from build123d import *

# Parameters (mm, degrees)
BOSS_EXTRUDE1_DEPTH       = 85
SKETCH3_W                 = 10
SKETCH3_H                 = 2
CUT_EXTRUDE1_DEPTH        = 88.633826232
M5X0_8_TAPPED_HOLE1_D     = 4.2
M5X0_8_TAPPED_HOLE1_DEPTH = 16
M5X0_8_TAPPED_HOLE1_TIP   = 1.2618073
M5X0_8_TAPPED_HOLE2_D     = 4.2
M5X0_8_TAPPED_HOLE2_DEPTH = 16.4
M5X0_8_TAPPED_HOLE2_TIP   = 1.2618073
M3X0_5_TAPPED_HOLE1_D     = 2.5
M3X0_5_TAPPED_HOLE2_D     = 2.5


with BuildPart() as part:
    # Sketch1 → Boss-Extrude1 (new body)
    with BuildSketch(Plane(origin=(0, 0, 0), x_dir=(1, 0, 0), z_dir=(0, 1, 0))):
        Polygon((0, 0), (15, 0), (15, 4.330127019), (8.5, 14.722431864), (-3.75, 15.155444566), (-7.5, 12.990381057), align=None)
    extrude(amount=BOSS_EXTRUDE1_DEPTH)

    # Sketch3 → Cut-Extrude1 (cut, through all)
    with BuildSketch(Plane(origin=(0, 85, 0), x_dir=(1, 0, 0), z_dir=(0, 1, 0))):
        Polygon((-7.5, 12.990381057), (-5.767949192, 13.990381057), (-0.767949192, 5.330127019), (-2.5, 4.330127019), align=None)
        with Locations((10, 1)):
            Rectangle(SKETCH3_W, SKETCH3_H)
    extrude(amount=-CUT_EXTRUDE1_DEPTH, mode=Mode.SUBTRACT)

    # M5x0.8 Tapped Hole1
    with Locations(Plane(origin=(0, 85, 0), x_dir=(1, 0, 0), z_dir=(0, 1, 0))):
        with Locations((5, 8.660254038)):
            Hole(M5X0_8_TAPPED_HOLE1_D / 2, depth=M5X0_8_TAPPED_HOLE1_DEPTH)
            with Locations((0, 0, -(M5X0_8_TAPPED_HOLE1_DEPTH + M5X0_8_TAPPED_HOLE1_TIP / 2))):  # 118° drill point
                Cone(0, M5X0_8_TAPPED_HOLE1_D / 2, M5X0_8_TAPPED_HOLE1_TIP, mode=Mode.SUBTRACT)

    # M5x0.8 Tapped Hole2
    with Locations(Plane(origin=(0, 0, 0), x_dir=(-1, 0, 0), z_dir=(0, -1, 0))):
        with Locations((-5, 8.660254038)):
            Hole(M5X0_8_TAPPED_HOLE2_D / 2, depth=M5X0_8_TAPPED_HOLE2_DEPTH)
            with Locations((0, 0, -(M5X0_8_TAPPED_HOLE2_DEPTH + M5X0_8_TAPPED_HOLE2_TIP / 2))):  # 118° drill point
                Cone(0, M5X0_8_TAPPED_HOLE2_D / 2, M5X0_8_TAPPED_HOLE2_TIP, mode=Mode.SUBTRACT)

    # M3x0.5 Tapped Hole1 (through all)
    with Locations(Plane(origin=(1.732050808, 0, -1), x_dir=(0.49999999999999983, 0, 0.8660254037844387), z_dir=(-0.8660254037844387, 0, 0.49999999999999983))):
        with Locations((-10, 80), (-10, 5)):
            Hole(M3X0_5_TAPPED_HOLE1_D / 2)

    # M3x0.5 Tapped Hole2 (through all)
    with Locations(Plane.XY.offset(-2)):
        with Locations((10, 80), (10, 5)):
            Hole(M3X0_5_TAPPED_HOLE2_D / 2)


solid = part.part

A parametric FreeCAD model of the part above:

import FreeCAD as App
import Part
import Sketcher

V = App.Vector
Q = App.Units.Quantity


def add_polygon(sketch, points):
    """Adds a closed chain of lines whose ends are joined by coincident constraints."""
    first, n = sketch.GeometryCount, len(points)
    for a, b in zip(points, points[1:] + points[:1]):
        sketch.addGeometry(Part.LineSegment(App.Vector(*a, 0), App.Vector(*b, 0)), False)
    for i in range(n):
        sketch.addConstraint(Sketcher.Constraint("Coincident", first + i, 2, first + (i + 1) % n, 1))

doc = App.newDocument("Part")
body = doc.addObject("PartDesign::Body", "Body")

sketch1 = body.newObject("Sketcher::SketchObject", "Sketch")
sketch1.AttachmentSupport = (doc.getObject("XZ_Plane"), [""])
sketch1.MapMode = "FlatFace"
add_polygon(sketch1, [(0, 0), (15, 0), (15, -4.3), (8.5, -14.7), (-3.8, -15.2), (-7.5, -13)])
sketch1.addConstraint([
    Sketcher.Constraint("Horizontal", 0),
    Sketcher.Constraint("Vertical", 1),
    Sketcher.Constraint("Coincident", 5, 2, -1, 1),
    Sketcher.Constraint("Perpendicular", 4, 5),
    Sketcher.Constraint("Equal", 2, 3),
    Sketcher.Constraint("DistanceX", 0, 1, 0, 2, Q("15 mm")),
    Sketcher.Constraint("Angle", 4, Q("150 deg")),
    Sketcher.Constraint("Distance", 5, Q("15 mm")),
    Sketcher.Constraint("DistanceX", 4, 2, 2, 2, Q("16 mm")),
    Sketcher.Constraint("DistanceX", 3, 2, -1, 1, Q("3.75 mm")),
    Sketcher.Constraint("Distance", 2, Q("12.257651 mm")),
])
pad1 = body.newObject("PartDesign::Pad", "Pad")
pad1.Profile = sketch1
pad1.Length = 85
pad1.Reversed = True

sketch2 = body.newObject("Sketcher::SketchObject", "Sketch001")
sketch2.AttachmentSupport = (doc.getObject("XZ_Plane"), [""])
sketch2.MapMode = "FlatFace"
sketch2.AttachmentOffset = App.Placement(V(0, 0, -85), App.Rotation())
add_polygon(sketch2, [(-5.8, -14), (-7.5, -13), (-2.5, -4.3), (-0.8, -5.3)])
add_polygon(sketch2, [(5, -2), (5, 0), (15, 0), (15, -2)])
sketch2.addConstraint([
    Sketcher.Constraint("Vertical", 4),
    Sketcher.Constraint("Horizontal", 5),
    Sketcher.Constraint("Vertical", 6),
    Sketcher.Constraint("Horizontal", 7),
    Sketcher.Constraint("PointOnObject", 4, 2, -1),
    Sketcher.Constraint("Perpendicular", 0, 1),
    Sketcher.Constraint("Perpendicular", 1, 2),
    Sketcher.Constraint("Perpendicular", 2, 3),
    Sketcher.Constraint("DistanceX", 5, 1, 5, 2, Q("10 mm")),
    Sketcher.Constraint("DistanceY", 4, 1, 4, 2, Q("2 mm")),
    Sketcher.Constraint("Angle", 0, Q("150 deg")),
    Sketcher.Constraint("Distance", 0, Q("2 mm")),
    Sketcher.Constraint("Distance", 1, Q("10 mm")),
    Sketcher.Constraint("DistanceX", -1, 1, 4, 2, Q("5 mm")),
    Sketcher.Constraint("DistanceX", 0, 2, -1, 1, Q("7.5 mm")),
    Sketcher.Constraint("DistanceY", 0, 2, -1, 1, Q("12.990381 mm")),
])
pocket1 = body.newObject("PartDesign::Pocket", "Pocket")
pocket1.Profile = sketch2
pocket1.Type = "ThroughAll"
pocket1.Reversed = True

sketch3 = body.newObject("Sketcher::SketchObject", "Sketch002")
sketch3.AttachmentSupport = (doc.getObject("XZ_Plane"), [""])
sketch3.MapMode = "FlatFace"
sketch3.AttachmentOffset = App.Placement(V(0, 0, -85), App.Rotation())
sketch3.addGeometry(Part.Circle(V(5, -8.7, 0), V(0, 0, 1), 2.1), False)
sketch3.addConstraint([
    Sketcher.Constraint("Diameter", 0, Q("4.2 mm")),
    Sketcher.Constraint("DistanceX", -1, 1, 0, 3, Q("5 mm")),
    Sketcher.Constraint("DistanceY", 0, 3, -1, 1, Q("8.660254 mm")),
])
doc.recompute()
hole = body.newObject("PartDesign::Hole", "Hole")
hole.Profile = sketch3
hole.ThreadType = "None"
hole.Diameter = 4.2
hole.DepthType = "Dimension"
hole.Depth = 16
hole.DrillPoint = "Angled"
hole.DrillPointAngle = 118
hole.Reversed = True

sketch4 = body.newObject("Sketcher::SketchObject", "Sketch003")
sketch4.AttachmentSupport = (doc.getObject("XZ_Plane"), [""])
sketch4.MapMode = "FlatFace"
sketch4.addGeometry(Part.Circle(V(5, -8.7, 0), V(0, 0, 1), 2.1), False)
sketch4.addConstraint([
    Sketcher.Constraint("Diameter", 0, Q("4.2 mm")),
    Sketcher.Constraint("DistanceX", -1, 1, 0, 3, Q("5 mm")),
    Sketcher.Constraint("DistanceY", 0, 3, -1, 1, Q("8.660254 mm")),
])
doc.recompute()
hole2 = body.newObject("PartDesign::Hole", "Hole001")
hole2.Profile = sketch4
hole2.ThreadType = "None"
hole2.Diameter = 4.2
hole2.DepthType = "Dimension"
hole2.Depth = 16.4
hole2.DrillPoint = "Angled"
hole2.DrillPointAngle = 118

sketch5 = body.newObject("Sketcher::SketchObject", "Sketch004")
sketch5.Placement = App.Placement(V(1.732051, 0, -1), App.Rotation(V(0.5, 0, 0.866025404), V(0, 1, 0), V(-0.866025404, 0, 0.5), "ZXY"))
sketch5.addGeometry([
    Part.Circle(V(-10, 80, 0), V(0, 0, 1), 1.2),
    Part.Circle(V(-10, 5, 0), V(0, 0, 1), 1.2),
], False)
sketch5.addConstraint([
    Sketcher.Constraint("Equal", 0, 1),
    Sketcher.Constraint("Vertical", 0, 3, 1, 3),
    Sketcher.Constraint("Diameter", 0, Q("2.5 mm")),
    Sketcher.Constraint("DistanceX", 0, 3, -1, 1, Q("10 mm")),
    Sketcher.Constraint("DistanceY", -1, 1, 0, 3, Q("80 mm")),
    Sketcher.Constraint("DistanceY", -1, 1, 1, 3, Q("5 mm")),
])
doc.recompute()
hole3 = body.newObject("PartDesign::Hole", "Hole002")
hole3.Profile = sketch5
hole3.ThreadType = "None"
hole3.Diameter = 2.5
hole3.DepthType = "ThroughAll"

sketch6 = body.newObject("Sketcher::SketchObject", "Sketch005")
sketch6.AttachmentSupport = (doc.getObject("XY_Plane"), [""])
sketch6.MapMode = "FlatFace"
sketch6.AttachmentOffset = App.Placement(V(0, 0, -2), App.Rotation())
sketch6.addGeometry([
    Part.Circle(V(10, 80, 0), V(0, 0, 1), 1.2),
    Part.Circle(V(10, 5, 0), V(0, 0, 1), 1.2),
], False)
sketch6.addConstraint([
    Sketcher.Constraint("Equal", 0, 1),
    Sketcher.Constraint("Vertical", 0, 3, 1, 3),
    Sketcher.Constraint("Diameter", 0, Q("2.5 mm")),
    Sketcher.Constraint("DistanceX", -1, 1, 0, 3, Q("10 mm")),
    Sketcher.Constraint("DistanceY", -1, 1, 0, 3, Q("80 mm")),
    Sketcher.Constraint("DistanceY", -1, 1, 1, 3, Q("5 mm")),
])
doc.recompute()
hole4 = body.newObject("PartDesign::Hole", "Hole003")
hole4.Profile = sketch6
hole4.ThreadType = "None"
hole4.Diameter = 2.5
hole4.DepthType = "ThroughAll"

doc.recompute()
